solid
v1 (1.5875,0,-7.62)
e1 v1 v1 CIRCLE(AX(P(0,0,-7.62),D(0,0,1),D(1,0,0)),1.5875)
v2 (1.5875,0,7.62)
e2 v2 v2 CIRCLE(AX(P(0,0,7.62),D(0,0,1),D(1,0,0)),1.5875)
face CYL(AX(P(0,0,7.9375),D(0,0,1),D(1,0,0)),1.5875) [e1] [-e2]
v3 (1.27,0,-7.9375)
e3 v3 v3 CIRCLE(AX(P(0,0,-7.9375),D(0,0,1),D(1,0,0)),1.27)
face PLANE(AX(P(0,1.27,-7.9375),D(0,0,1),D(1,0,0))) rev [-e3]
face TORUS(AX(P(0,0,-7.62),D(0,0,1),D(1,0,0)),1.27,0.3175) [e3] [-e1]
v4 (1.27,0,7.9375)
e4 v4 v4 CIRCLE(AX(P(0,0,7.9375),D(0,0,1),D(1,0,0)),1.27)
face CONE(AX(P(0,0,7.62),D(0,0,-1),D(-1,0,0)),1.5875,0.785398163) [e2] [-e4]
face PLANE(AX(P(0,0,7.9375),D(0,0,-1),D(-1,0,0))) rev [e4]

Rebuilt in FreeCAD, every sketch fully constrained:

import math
import FreeCAD as App
import Part
import Sketcher

V = App.Vector
Q = App.Units.Quantity

doc = App.newDocument("Part")
body = doc.addObject("PartDesign::Body", "Body")

# Sketch on YZ plane
sketch1 = body.newObject("Sketcher::SketchObject", "Sketch")
sketch1.AttachmentSupport = (doc.getObject("YZ_Plane"), [""])
sketch1.MapMode = "FlatFace"
sketch1.addGeometry([
    Part.LineSegment(V(0, -7.9375, 0), V(1.27, -7.9375, 0)),  # 0
    Part.ArcOfCircle(Part.Circle(V(1.27, -7.62, 0), V(0, 0, 1), 0.3175), math.radians(-90), math.radians(0)),  # 1
    Part.LineSegment(V(1.5875, -7.62, 0), V(1.5875, 7.62, 0)),  # 2
    Part.LineSegment(V(1.5875, 7.62, 0), V(1.27, 7.9375, 0)),  # 3
    Part.LineSegment(V(1.27, 7.9375, 0), V(0, 7.9375, 0)),  # 4
    Part.LineSegment(V(0, 7.9375, 0), V(0, -7.9375, 0)),  # 5
], False)
sketch1.addConstraint([
    Sketcher.Constraint("Tangent", 0, 2, 1, 1),
    Sketcher.Constraint("Tangent", 1, 2, 2, 1),
    Sketcher.Constraint("Coincident", 2, 2, 3, 1),
    Sketcher.Constraint("Coincident", 3, 2, 4, 1),
    Sketcher.Constraint("Coincident", 4, 2, 5, 1),
    Sketcher.Constraint("Coincident", 5, 2, 0, 1),
    Sketcher.Constraint("Horizontal", 0),
    Sketcher.Constraint("Vertical", 2),
    Sketcher.Constraint("Horizontal", 4),
    Sketcher.Constraint("Vertical", 5),
    Sketcher.Constraint("Symmetric", 4, 2, 5, 2, -1, 1),
    Sketcher.Constraint("Vertical", 0, 2, 3, 2),
    Sketcher.Constraint("DistanceY", 2, 1, 2, 2, Q("0.6 in")),
    Sketcher.Constraint("Angle", 3, Q("135 deg")),
    Sketcher.Constraint("DistanceX", 0, 1, 0, 2, Q("0.05 in")),
    Sketcher.Constraint("Radius", 1, Q("0.0125 in")),
])
revolution = body.newObject("PartDesign::Revolution", "Revolution")
revolution.Profile = sketch1
revolution.ReferenceAxis = (sketch1, ["V_Axis"])
revolution.Angle = 360

doc.recompute()
